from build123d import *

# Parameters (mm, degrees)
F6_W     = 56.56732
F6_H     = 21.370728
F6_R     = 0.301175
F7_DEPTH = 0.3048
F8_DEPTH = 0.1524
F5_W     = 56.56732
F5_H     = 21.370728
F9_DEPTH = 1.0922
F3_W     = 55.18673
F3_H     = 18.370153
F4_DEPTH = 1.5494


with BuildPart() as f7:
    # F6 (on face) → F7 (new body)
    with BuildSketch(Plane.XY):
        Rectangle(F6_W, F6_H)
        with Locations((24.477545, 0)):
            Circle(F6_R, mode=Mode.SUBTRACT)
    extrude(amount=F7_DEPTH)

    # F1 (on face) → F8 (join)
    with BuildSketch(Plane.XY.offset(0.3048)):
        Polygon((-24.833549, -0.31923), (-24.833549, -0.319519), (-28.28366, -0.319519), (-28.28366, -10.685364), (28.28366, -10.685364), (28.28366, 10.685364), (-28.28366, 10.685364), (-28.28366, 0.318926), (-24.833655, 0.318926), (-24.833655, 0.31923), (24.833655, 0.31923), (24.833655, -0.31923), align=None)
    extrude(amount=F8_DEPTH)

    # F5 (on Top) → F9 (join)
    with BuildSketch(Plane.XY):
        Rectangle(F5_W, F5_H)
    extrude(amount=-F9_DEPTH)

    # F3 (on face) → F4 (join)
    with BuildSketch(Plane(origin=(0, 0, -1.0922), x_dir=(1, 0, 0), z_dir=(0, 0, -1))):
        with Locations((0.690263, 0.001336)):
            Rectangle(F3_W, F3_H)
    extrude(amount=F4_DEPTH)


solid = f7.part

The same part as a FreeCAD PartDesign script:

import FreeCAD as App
import Part
import Sketcher
Q = App.Units.Quantity


def add_polygon(sketch, points):
    """Adds a closed chain of lines whose ends are joined by coincident constraints."""
    first, n = sketch.GeometryCount, len(points)
    for a, b in zip(points, points[1:] + points[:1]):
        sketch.addGeometry(Part.LineSegment(App.Vector(*a, 0), App.Vector(*b, 0)), False)
    for i in range(n):
        sketch.addConstraint(Sketcher.Constraint("Coincident", first + i, 2, first + (i + 1) % n, 1))

doc = App.newDocument("Part")
body = doc.addObject("PartDesign::Body", "Body")

# Sketch on XY plane
sketch1 = doc.addObject("Sketcher::SketchObject", "Sketch")
body.addObject(sketch1)
sketch1.AttachmentSupport = (doc.XY_Plane, [""])
sketch1.MapMode = "FlatFace"
add_polygon(sketch1, [(-28.28366, 10.685364), (-28.28366, -10.685364), (28.28366, -10.685364), (28.28366, 10.685364)])  # lines 0-3
sketch1.addGeometry(Part.Circle(App.Vector(24.477545, 0, 0), App.Vector(0, 0, 1), 0.301175), False)  # 4
sketch1.addConstraint([
    Sketcher.Constraint("Vertical", 0),
    Sketcher.Constraint("Horizontal", 1),
    Sketcher.Constraint("Vertical", 2),
    Sketcher.Constraint("Horizontal", 3),
    Sketcher.Constraint("Symmetric", 0, 2, 2, 2, -1, 1),
    Sketcher.Constraint("PointOnObject", 4, 3, -1),
    Sketcher.Constraint("Diameter", 4, 0.60235),
    Sketcher.Constraint("DistanceX", 1, 1, 1, 2, 56.56732),
    Sketcher.Constraint("DistanceY", 0, 2, 0, 1, 21.370728),
    Sketcher.Constraint("DistanceX", -1, 1, 4, 3, 24.477545),
])
pad1 = doc.addObject("PartDesign::Pad", "Pad")
body.addObject(pad1)
pad1.Profile = sketch1
pad1.Length = Q("0.012 in")

# Sketch on XY plane
sketch2 = doc.addObject("Sketcher::SketchObject", "Sketch001")
body.addObject(sketch2)
sketch2.AttachmentSupport = (doc.XY_Plane, [""])
sketch2.MapMode = "FlatFace"
sketch2.AttachmentOffset = App.Placement(App.Vector(0, 0, 0.012 * 25.4), App.Rotation())
add_polygon(sketch2, [(-24.833549, -0.31923), (-24.833549, -0.319519), (-28.28366, -0.319519), (-28.28366, -10.685364), (28.28366, -10.685364), (28.28366, 10.685364), (-28.28366, 10.685364), (-28.28366, 0.318926), (-24.833655, 0.318926), (-24.833655, 0.31923), (24.833655, 0.31923), (24.833655, -0.31923)])  # lines 0-11
sketch2.addConstraint([
    Sketcher.Constraint("Vertical", 0),
    Sketcher.Constraint("Horizontal", 1),
    Sketcher.Constraint("Vertical", 2),
    Sketcher.Constraint("Horizontal", 3),
    Sketcher.Constraint("Vertical", 4),
    Sketcher.Constraint("Horizontal", 5),
    Sketcher.Constraint("Vertical", 6),
    Sketcher.Constraint("Horizontal", 7),
    Sketcher.Constraint("Vertical", 8),
    Sketcher.Constraint("Horizontal", 9),
    Sketcher.Constraint("Vertical", 10),
    Sketcher.Constraint("Horizontal", 11),
    Sketcher.Constraint("Symmetric", 2, 2, 4, 2, -1, 1),
    Sketcher.Constraint("Symmetric", 8, 2, 10, 2, -1, 1),
    Sketcher.Constraint("Vertical", 2, 2, 5, 2),
    Sketcher.Constraint("DistanceX", 1, 2, 1, 1, 3.450111),
    Sketcher.Constraint("DistanceX", 3, 1, 3, 2, 56.56732),
    Sketcher.Constraint("DistanceX", 9, 1, 9, 2, 49.66731),
    Sketcher.Constraint("DistanceY", 0, 2, 0, 1, 0.000289),
    Sketcher.Constraint("DistanceY", 4, 1, 4, 2, 21.370728),
    Sketcher.Constraint("DistanceY", 10, 2, 10, 1, 0.63846),
    Sketcher.Constraint("DistanceY", 6, 2, 6, 1, 10.366438),
])
pad2 = doc.addObject("PartDesign::Pad", "Pad001")
body.addObject(pad2)
pad2.Profile = sketch2
pad2.Length = Q("0.006 in")

# Sketch on XY plane
sketch3 = doc.addObject("Sketcher::SketchObject", "Sketch002")
body.addObject(sketch3)
sketch3.AttachmentSupport = (doc.XY_Plane, [""])
sketch3.MapMode = "FlatFace"
add_polygon(sketch3, [(-28.28366, 10.685364), (-28.28366, -10.685364), (28.28366, -10.685364), (28.28366, 10.685364)])  # lines 0-3
sketch3.addConstraint([
    Sketcher.Constraint("Vertical", 0),
    Sketcher.Constraint("Horizontal", 1),
    Sketcher.Constraint("Vertical", 2),
    Sketcher.Constraint("Horizontal", 3),
    Sketcher.Constraint("Symmetric", 0, 2, 2, 2, -1, 1),
    Sketcher.Constraint("DistanceX", 1, 1, 1, 2, 56.56732),
    Sketcher.Constraint("DistanceY", 0, 2, 0, 1, 21.370728),
])
pad3 = doc.addObject("PartDesign::Pad", "Pad002")
body.addObject(pad3)
pad3.Profile = sketch3
pad3.Length = Q("0.043 in")
pad3.Reversed = True

# Sketch on XY plane
sketch4 = doc.addObject("Sketcher::SketchObject", "Sketch003")
body.addObject(sketch4)
sketch4.AttachmentSupport = (doc.XY_Plane, [""])
sketch4.MapMode = "FlatFace"
sketch4.AttachmentOffset = App.Placement(App.Vector(0, 0, -0.043 * 25.4), App.Rotation())
add_polygon(sketch4, [(-26.903102, -9.186412), (-26.903102, 9.183741), (28.283628, 9.183741), (28.283628, -9.186412)])  # lines 0-3
sketch4.addConstraint([
    Sketcher.Constraint("Vertical", 0),
    Sketcher.Constraint("Horizontal", 1),
    Sketcher.Constraint("Vertical", 2),
    Sketcher.Constraint("Horizontal", 3),
    Sketcher.Constraint("DistanceX", 1, 1, 1, 2, 55.18673),
    Sketcher.Constraint("DistanceY", 0, 1, 0, 2, 18.370153),
    Sketcher.Constraint("DistanceY", -1, 1, 0, 2, 9.183741),
    Sketcher.Constraint("DistanceX", -1, 1, 1, 2, 28.283628),
])
pad4 = doc.addObject("PartDesign::Pad", "Pad003")
body.addObject(pad4)
pad4.Profile = sketch4
pad4.Length = Q("0.061 in")
pad4.Reversed = True

doc.recompute()
